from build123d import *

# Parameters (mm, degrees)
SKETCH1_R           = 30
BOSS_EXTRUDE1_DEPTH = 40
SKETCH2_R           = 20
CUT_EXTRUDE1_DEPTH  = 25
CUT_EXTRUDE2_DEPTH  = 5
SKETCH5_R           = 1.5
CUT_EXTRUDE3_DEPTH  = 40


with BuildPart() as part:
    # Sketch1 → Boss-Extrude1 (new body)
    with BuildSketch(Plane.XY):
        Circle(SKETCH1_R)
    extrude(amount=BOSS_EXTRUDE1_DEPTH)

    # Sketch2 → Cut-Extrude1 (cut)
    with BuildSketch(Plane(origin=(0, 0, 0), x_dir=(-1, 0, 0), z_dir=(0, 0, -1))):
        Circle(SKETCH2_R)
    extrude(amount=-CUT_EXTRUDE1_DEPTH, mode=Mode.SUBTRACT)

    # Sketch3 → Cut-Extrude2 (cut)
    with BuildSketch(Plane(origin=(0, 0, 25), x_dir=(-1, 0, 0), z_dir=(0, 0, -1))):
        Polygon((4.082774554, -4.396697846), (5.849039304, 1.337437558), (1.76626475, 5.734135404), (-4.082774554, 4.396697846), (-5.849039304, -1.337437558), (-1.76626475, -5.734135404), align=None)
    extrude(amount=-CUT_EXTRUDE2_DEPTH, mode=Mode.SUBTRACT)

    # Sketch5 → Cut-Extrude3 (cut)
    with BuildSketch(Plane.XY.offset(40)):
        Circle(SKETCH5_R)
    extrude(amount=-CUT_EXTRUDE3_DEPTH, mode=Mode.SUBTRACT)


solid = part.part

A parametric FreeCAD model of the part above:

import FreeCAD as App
import Part
import Sketcher

V = App.Vector
Q = App.Units.Quantity

doc = App.newDocument("Part")
body = doc.addObject("PartDesign::Body", "Body")

# Sketch on XY plane
sketch1 = body.newObject("Sketcher::SketchObject", "Sketch")
sketch1.AttachmentSupport = (doc.getObject("XY_Plane"), [""])
sketch1.MapMode = "FlatFace"
sketch1.addGeometry(Part.Circle(V(0, 0, 0), V(0, 0, 1), 30), False)
sketch1.addConstraint([
    Sketcher.Constraint("Coincident", 0, 3, -1, 1),
    Sketcher.Constraint("Diameter", 0, Q("60 mm")),
])
pad1 = body.newObject("PartDesign::Pad", "Pad")
pad1.Profile = sketch1
pad1.Length = 40

# Sketch on XY plane
sketch2 = body.newObject("Sketcher::SketchObject", "Sketch001")
sketch2.AttachmentSupport = (doc.getObject("XY_Plane"), [""])
sketch2.MapMode = "FlatFace"
sketch2.addGeometry(Part.Circle(V(0, 0, 0), V(0, 0, 1), 20), False)
sketch2.addConstraint([
    Sketcher.Constraint("Coincident", 0, 3, -1, 1),
    Sketcher.Constraint("Diameter", 0, Q("40 mm")),
])
pocket1 = body.newObject("PartDesign::Pocket", "Pocket")
pocket1.Profile = sketch2
pocket1.Length = 25
pocket1.Reversed = True

# Sketch on XY plane
sketch3 = body.newObject("Sketcher::SketchObject", "Sketch002")
sketch3.AttachmentSupport = (doc.getObject("XY_Plane"), [""])
sketch3.MapMode = "FlatFace"
sketch3.AttachmentOffset = App.Placement(V(0, 0, 25), App.Rotation())
sketch3.addGeometry([
    Part.LineSegment(V(-4, -4, 0), V(-6, 1, 0)),  # 0
    Part.LineSegment(V(-6, 1, 0), V(-2, 6, 0)),  # 1
    Part.LineSegment(V(-2, 6, 0), V(4, 4, 0)),  # 2
    Part.LineSegment(V(4, 4, 0), V(6, -1, 0)),  # 3
    Part.LineSegment(V(6, -1, 0), V(2, -6, 0)),  # 4
    Part.LineSegment(V(2, -6, 0), V(-4, -4, 0)),  # 5
], False)
sketch3.addConstraint([
    Sketcher.Constraint("Coincident", 0, 2, 1, 1),
    Sketcher.Constraint("Coincident", 1, 2, 2, 1),
    Sketcher.Constraint("Coincident", 2, 2, 3, 1),
    Sketcher.Constraint("Coincident", 3, 2, 4, 1),
    Sketcher.Constraint("Coincident", 4, 2, 5, 1),
    Sketcher.Constraint("Coincident", 5, 2, 0, 1),
    Sketcher.Constraint("Symmetric", 0, 2, 3, 2, -1, 1),
    Sketcher.Constraint("Symmetric", 1, 2, 4, 2, -1, 1),
    Sketcher.Constraint("Symmetric", 2, 2, 5, 2, -1, 1),
    Sketcher.Constraint("Equal", 0, 1),
    Sketcher.Constraint("Equal", 1, 2),
    Sketcher.Constraint("Distance", 0, Q("6 mm")),
    Sketcher.Constraint("DistanceX", 0, 2, -1, 1, Q("5.849039 mm")),
    Sketcher.Constraint("DistanceX", 1, 2, 2, 2, Q("5.849039 mm")),
    Sketcher.Constraint("DistanceY", 0, 2, 2, 2, Q("3.05926 mm")),
])
pocket2 = body.newObject("PartDesign::Pocket", "Pocket001")
pocket2.Profile = sketch3
pocket2.Length = 5
pocket2.Reversed = True

# Sketch on XY plane
sketch4 = body.newObject("Sketcher::SketchObject", "Sketch003")
sketch4.AttachmentSupport = (doc.getObject("XY_Plane"), [""])
sketch4.MapMode = "FlatFace"
sketch4.AttachmentOffset = App.Placement(V(0, 0, 40), App.Rotation())
sketch4.addGeometry(Part.Circle(V(0, 0, 0), V(0, 0, 1), 1.5), False)
sketch4.addConstraint([
    Sketcher.Constraint("Coincident", 0, 3, -1, 1),
    Sketcher.Constraint("Diameter", 0, Q("3 mm")),
])
pocket3 = body.newObject("PartDesign::Pocket", "Pocket002")
pocket3.Profile = sketch4
pocket3.Length = 40

doc.recompute()
